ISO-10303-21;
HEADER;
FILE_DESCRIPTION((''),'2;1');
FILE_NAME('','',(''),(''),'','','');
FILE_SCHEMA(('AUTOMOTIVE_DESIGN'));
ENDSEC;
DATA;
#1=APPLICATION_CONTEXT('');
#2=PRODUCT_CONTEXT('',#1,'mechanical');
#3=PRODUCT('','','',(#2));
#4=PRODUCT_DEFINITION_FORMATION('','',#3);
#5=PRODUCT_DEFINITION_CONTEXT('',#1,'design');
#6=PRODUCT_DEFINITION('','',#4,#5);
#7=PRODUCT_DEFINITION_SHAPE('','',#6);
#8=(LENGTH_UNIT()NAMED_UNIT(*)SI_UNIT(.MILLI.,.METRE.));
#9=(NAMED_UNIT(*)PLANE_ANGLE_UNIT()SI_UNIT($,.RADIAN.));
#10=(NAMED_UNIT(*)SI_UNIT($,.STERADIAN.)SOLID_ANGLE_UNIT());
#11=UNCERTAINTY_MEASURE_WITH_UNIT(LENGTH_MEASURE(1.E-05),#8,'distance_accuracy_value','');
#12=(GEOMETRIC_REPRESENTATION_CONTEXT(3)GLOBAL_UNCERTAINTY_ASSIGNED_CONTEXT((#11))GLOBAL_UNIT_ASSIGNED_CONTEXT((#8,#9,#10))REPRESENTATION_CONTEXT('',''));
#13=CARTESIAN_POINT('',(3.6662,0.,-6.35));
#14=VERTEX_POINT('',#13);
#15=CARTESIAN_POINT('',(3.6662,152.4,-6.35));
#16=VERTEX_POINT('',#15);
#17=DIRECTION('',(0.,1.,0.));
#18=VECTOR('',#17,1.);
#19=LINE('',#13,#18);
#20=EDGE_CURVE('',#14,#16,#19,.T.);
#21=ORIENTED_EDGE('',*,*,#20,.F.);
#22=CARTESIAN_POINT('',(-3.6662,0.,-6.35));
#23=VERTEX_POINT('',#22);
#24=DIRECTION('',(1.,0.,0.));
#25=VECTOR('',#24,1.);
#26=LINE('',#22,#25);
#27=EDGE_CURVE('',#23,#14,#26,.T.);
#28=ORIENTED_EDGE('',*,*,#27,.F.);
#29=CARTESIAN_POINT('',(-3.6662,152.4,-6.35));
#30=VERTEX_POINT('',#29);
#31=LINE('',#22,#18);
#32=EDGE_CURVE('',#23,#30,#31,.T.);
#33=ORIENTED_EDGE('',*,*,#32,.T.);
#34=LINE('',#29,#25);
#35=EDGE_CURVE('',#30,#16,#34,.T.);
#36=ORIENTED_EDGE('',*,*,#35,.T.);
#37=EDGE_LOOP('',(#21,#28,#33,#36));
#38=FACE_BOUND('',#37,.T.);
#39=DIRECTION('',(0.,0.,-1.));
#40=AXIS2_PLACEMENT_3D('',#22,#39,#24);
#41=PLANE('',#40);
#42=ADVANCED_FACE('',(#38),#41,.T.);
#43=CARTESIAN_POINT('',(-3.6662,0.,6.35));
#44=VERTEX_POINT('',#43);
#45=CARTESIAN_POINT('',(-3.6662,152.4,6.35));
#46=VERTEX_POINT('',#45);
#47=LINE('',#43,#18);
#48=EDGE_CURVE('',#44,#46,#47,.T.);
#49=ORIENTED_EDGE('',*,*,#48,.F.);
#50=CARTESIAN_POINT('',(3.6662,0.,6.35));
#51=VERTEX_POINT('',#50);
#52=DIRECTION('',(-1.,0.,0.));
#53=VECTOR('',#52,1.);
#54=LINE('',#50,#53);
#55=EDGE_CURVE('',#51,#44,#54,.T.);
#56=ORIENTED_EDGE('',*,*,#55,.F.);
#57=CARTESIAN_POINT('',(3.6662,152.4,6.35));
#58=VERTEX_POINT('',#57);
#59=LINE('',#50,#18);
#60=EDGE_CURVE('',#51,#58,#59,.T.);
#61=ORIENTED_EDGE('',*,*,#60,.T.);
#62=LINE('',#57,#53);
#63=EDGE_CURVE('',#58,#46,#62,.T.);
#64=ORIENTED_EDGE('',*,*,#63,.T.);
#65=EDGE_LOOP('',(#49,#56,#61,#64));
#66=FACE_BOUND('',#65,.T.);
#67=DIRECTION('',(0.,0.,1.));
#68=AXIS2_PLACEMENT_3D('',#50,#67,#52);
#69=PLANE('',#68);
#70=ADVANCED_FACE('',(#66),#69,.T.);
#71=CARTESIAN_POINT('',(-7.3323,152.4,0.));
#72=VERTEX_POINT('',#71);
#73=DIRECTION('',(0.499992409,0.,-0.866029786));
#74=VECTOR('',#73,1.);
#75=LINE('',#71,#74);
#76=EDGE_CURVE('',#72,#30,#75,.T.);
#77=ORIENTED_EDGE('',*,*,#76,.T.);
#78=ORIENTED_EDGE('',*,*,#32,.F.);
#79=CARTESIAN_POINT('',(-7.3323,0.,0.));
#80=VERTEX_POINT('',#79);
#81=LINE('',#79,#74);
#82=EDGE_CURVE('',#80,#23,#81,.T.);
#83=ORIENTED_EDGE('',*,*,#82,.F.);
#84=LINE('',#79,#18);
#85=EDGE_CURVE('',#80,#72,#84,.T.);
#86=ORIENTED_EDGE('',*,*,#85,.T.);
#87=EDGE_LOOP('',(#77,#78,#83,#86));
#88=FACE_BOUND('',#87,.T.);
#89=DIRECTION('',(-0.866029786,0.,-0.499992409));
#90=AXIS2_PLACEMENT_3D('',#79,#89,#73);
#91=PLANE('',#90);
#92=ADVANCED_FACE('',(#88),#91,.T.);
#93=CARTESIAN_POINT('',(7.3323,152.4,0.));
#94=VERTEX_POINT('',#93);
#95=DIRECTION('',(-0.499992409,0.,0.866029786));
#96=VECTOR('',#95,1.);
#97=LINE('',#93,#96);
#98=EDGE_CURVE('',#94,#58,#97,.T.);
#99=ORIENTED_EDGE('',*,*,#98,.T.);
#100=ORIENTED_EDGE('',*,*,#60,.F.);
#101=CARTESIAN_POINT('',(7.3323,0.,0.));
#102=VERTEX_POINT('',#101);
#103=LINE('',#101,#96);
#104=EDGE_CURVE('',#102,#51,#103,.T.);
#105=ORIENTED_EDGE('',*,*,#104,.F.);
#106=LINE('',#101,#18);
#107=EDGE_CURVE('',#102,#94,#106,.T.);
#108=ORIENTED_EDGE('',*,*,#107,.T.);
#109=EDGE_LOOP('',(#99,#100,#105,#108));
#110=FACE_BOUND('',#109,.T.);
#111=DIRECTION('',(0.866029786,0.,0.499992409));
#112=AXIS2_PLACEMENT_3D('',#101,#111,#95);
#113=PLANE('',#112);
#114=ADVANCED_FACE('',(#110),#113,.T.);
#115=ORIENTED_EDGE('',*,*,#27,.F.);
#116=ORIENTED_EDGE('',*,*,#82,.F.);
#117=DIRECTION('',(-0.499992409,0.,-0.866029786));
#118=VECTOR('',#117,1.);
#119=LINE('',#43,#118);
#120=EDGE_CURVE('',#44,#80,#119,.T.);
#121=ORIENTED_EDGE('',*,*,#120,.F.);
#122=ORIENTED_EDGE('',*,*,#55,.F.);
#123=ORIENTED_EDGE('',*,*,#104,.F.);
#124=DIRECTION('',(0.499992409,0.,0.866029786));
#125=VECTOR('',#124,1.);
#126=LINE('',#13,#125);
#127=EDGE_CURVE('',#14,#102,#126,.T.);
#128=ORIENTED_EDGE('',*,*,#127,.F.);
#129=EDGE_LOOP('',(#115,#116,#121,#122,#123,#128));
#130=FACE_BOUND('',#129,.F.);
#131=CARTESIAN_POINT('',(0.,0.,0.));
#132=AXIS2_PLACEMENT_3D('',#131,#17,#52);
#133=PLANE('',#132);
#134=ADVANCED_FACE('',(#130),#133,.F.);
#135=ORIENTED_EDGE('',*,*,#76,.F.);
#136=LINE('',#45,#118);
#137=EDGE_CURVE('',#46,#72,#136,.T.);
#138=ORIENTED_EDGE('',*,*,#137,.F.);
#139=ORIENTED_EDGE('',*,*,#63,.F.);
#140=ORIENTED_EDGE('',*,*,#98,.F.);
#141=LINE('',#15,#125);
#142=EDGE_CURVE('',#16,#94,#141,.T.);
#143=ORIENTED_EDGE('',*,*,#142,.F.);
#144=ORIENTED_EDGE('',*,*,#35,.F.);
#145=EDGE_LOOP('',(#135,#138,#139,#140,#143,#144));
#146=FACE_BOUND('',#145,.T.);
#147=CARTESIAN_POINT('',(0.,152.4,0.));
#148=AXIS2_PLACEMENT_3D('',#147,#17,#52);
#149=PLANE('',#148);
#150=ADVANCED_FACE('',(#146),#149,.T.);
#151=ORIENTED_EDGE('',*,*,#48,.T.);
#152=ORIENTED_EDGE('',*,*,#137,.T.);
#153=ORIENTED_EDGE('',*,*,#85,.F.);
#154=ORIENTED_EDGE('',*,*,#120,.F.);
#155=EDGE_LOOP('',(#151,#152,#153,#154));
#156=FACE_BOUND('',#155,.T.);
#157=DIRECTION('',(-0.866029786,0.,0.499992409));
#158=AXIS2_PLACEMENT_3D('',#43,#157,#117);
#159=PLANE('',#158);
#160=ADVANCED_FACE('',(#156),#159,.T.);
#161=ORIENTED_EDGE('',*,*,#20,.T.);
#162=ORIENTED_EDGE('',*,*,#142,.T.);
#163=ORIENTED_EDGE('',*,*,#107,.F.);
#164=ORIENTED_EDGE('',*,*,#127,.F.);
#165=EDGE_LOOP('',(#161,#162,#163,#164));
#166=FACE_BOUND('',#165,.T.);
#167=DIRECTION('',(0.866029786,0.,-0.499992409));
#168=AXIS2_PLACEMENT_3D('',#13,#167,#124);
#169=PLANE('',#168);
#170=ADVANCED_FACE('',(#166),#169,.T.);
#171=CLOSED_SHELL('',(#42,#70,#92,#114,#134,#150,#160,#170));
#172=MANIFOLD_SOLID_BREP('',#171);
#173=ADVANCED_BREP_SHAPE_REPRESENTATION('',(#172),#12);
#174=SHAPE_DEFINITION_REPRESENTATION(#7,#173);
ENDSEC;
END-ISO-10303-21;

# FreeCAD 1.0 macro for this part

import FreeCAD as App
import Part
import Sketcher
Q = App.Units.Quantity


def add_polygon(sketch, points):
    """Adds a closed chain of lines whose ends are joined by coincident constraints."""
    first, n = sketch.GeometryCount, len(points)
    for a, b in zip(points, points[1:] + points[:1]):
        sketch.addGeometry(Part.LineSegment(App.Vector(*a, 0), App.Vector(*b, 0)), False)
    for i in range(n):
        sketch.addConstraint(Sketcher.Constraint("Coincident", first + i, 2, first + (i + 1) % n, 1))

doc = App.newDocument("Part")
params = doc.addObject("Spreadsheet::Sheet", "Params")
for row, (alias, value) in enumerate([
    ("pad1_length", "6 in"),
], start=1):
    params.set(f"A{row}", alias)
    params.set(f"B{row}", "=" + value)
    params.setAlias(f"B{row}", alias)

body = doc.addObject("PartDesign::Body", "Body")

sketch1 = body.newObject("Sketcher::SketchObject", "Sketch")
sketch1.AttachmentSupport = (doc.getObject("XZ_Plane"), [""])
sketch1.MapMode = "FlatFace"
add_polygon(sketch1, [(-7, 0), (-4, 6), (4, 6), (7, 0), (4, -6), (-4, -6)])
sketch1.addConstraint(Sketcher.Constraint("Horizontal", 1))
sketch1.addConstraint(Sketcher.Constraint("Horizontal", 4))
sketch1.addConstraint(Sketcher.Constraint("Symmetric", 0, 2, 3, 2, -1, 1))
sketch1.addConstraint(Sketcher.Constraint("Symmetric", 2, 2, 5, 2, -1, 1))
sketch1.addConstraint(Sketcher.Constraint("PointOnObject", 2, 2, -1))
sketch1.addConstraint(Sketcher.Constraint("Parallel", 2, 5))
sketch1.addConstraint(Sketcher.Constraint("Vertical", 1, 2, 3, 2))
sketch1.addConstraint(Sketcher.Constraint("DistanceY", 3, 2, 1, 2, Q("0.5 in")))
sketch1.addConstraint(Sketcher.Constraint("Angle", 0, Q("60.0005 deg")))
sketch1.addConstraint(Sketcher.Constraint("DistanceX", 0, 2, 2, 2, Q("0.433 in")))
pad1 = body.newObject("PartDesign::Pad", "Pad")
pad1.Profile = sketch1
pad1.setExpression("Length", "Params.pad1_length")
pad1.Reversed = True

doc.recompute()
